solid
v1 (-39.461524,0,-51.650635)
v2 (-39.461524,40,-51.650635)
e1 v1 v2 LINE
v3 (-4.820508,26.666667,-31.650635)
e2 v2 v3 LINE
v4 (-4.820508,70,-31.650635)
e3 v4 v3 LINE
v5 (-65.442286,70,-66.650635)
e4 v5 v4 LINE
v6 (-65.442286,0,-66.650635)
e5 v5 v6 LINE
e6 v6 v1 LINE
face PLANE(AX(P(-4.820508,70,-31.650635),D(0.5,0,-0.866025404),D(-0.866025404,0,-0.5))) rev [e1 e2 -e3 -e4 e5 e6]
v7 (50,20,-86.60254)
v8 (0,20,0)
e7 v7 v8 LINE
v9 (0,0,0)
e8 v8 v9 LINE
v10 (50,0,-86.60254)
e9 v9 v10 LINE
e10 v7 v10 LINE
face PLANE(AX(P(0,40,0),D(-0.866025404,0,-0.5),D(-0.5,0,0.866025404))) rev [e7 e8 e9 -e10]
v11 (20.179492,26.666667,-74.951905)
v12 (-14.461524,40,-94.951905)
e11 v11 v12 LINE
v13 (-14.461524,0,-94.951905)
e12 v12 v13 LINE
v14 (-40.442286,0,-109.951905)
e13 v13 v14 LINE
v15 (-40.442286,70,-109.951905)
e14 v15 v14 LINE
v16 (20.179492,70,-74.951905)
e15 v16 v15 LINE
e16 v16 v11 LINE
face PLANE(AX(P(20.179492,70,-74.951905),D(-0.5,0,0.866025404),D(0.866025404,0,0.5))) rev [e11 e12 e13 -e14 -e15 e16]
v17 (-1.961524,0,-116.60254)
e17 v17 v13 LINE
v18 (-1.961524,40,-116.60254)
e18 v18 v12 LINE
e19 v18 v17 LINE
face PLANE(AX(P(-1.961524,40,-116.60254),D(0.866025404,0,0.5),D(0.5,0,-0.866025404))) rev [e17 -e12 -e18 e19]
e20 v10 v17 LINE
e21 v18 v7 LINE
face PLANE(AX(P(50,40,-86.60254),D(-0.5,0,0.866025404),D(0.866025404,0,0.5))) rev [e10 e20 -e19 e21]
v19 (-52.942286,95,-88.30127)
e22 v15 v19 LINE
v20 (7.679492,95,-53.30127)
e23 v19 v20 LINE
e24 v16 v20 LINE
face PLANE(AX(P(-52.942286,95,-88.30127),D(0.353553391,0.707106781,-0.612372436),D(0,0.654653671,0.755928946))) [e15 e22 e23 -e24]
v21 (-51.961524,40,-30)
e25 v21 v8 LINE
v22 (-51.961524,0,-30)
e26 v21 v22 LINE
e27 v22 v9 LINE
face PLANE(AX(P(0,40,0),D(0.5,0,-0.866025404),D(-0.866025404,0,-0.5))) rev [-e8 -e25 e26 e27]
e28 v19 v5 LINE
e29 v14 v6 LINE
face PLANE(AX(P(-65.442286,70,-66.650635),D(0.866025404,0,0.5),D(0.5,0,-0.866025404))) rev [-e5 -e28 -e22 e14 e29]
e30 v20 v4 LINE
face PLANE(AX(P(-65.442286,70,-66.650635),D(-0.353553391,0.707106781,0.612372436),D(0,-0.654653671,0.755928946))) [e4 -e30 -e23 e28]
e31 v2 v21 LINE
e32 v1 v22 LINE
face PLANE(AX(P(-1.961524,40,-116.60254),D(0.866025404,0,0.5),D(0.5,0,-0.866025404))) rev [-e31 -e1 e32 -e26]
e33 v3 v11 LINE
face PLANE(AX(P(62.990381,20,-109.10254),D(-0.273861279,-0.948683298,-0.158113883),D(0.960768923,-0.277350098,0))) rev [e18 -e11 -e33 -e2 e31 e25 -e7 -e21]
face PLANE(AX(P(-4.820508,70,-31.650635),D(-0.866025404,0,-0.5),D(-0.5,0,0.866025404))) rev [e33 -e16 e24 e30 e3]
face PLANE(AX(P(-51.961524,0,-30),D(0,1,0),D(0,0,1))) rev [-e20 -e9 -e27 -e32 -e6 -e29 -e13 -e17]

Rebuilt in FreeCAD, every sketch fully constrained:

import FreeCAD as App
import Part
import Sketcher
Q = App.Units.Quantity


def add_polygon(sketch, points):
    """Adds a closed chain of lines whose ends are joined by coincident constraints."""
    first, n = sketch.GeometryCount, len(points)
    for a, b in zip(points, points[1:] + points[:1]):
        sketch.addGeometry(Part.LineSegment(App.Vector(*a, 0), App.Vector(*b, 0)), False)
    for i in range(n):
        sketch.addConstraint(Sketcher.Constraint("Coincident", first + i, 2, first + (i + 1) % n, 1))

doc = App.newDocument("Part")
body = doc.addObject("PartDesign::Body", "Body")

sketch1 = doc.addObject("Sketcher::SketchObject", "Sketch")
body.addObject(sketch1)
sketch1.AttachmentSupport = (doc.XZ_Plane, [""])
sketch1.MapMode = "FlatFace"
add_polygon(sketch1, [(0, 0), (50, -86.60254), (-1.961524, -116.60254), (-51.961524, -30)])
sketch1.addConstraint(Sketcher.Constraint("Coincident", 3, 2, -1, 1))
sketch1.addConstraint(Sketcher.Constraint("Perpendicular", 0, 1))
sketch1.addConstraint(Sketcher.Constraint("Perpendicular", 1, 2))
sketch1.addConstraint(Sketcher.Constraint("Perpendicular", 2, 3))
sketch1.addConstraint(Sketcher.Constraint("Angle", 0, Q("-60 deg")))
sketch1.addConstraint(Sketcher.Constraint("Distance", 0, 100.0))
sketch1.addConstraint(Sketcher.Constraint("Distance", 1, 60.0))
pad1 = doc.addObject("PartDesign::Pad", "Pad")
body.addObject(pad1)
pad1.Profile = sketch1
pad1.Length = 40
pad1.Reversed = True

sketch2 = doc.addObject("Sketcher::SketchObject", "Sketch001")
body.addObject(sketch2)
sketch2.Placement = App.Placement(App.Vector(0, 0, 0), App.Rotation(App.Vector(0.866025404, 0, 0.5), App.Vector(0, 1, 0), App.Vector(-0.5, 0, 0.866025404), "ZXY"))
add_polygon(sketch2, [(-60, 40), (0, 20), (0, 40)])
sketch2.addConstraint(Sketcher.Constraint("Vertical", 1))
sketch2.addConstraint(Sketcher.Constraint("Horizontal", 2))
sketch2.addConstraint(Sketcher.Constraint("PointOnObject", 0, 2, -2))
sketch2.addConstraint(Sketcher.Constraint("DistanceX", 2, 2, 2, 1, 60.0))
sketch2.addConstraint(Sketcher.Constraint("DistanceY", 1, 1, 1, 2, 20.0))
sketch2.addConstraint(Sketcher.Constraint("DistanceY", -1, 1, 0, 2, 20.0))
pocket1 = doc.addObject("PartDesign::Pocket", "Pocket")
body.addObject(pocket1)
pocket1.Profile = sketch2
pocket1.Type = "ThroughAll"

sketch3 = doc.addObject("Sketcher::SketchObject", "Sketch002")
body.addObject(sketch3)
sketch3.AttachmentSupport = (doc.XZ_Plane, [""])
sketch3.MapMode = "FlatFace"
add_polygon(sketch3, [(-40.442286, -109.951905), (-65.442286, -66.650635), (-4.820508, -31.650635), (20.179492, -74.951905)])
sketch3.addConstraint(Sketcher.Constraint("Perpendicular", 0, 1))
sketch3.addConstraint(Sketcher.Constraint("Perpendicular", 1, 2))
sketch3.addConstraint(Sketcher.Constraint("Perpendicular", 2, 3))
sketch3.addConstraint(Sketcher.Constraint("Angle", 0, Q("120 deg")))
sketch3.addConstraint(Sketcher.Constraint("Distance", 0, 50.0))
sketch3.addConstraint(Sketcher.Constraint("Distance", 1, 70.0))
sketch3.addConstraint(Sketcher.Constraint("DistanceX", 1, 2, -1, 1, 4.820508))
sketch3.addConstraint(Sketcher.Constraint("DistanceY", 0, 2, -1, 1, 66.650635))
pad2 = doc.addObject("PartDesign::Pad", "Pad001")
body.addObject(pad2)
pad2.Profile = sketch3
pad2.Length = 70
pad2.Reversed = True

sketch4 = doc.addObject("Sketcher::SketchObject", "Sketch003")
body.addObject(sketch4)
sketch4.Placement = App.Placement(App.Vector(-17.320508, 0, -10), App.Rotation(App.Vector(0.5, 0, -0.866025404), App.Vector(0, 1, 0), App.Vector(0.866025404, 0, 0.5), "ZXY"))
add_polygon(sketch4, [(25, 70), (75, 70), (50, 95)])
sketch4.addConstraint(Sketcher.Constraint("Horizontal", 0))
sketch4.addConstraint(Sketcher.Constraint("Perpendicular", 1, 2))
sketch4.addConstraint(Sketcher.Constraint("Equal", 1, 2))
sketch4.addConstraint(Sketcher.Constraint("DistanceX", 0, 1, 0, 2, 50.0))
sketch4.addConstraint(Sketcher.Constraint("DistanceX", -1, 1, 0, 2, 75.0))
sketch4.addConstraint(Sketcher.Constraint("DistanceY", -1, 1, 0, 2, 70.0))
pad3 = doc.addObject("PartDesign::Pad", "Pad002")
body.addObject(pad3)
pad3.Profile = sketch4
pad3.Length = 70
pad3.Reversed = True

doc.recompute()
